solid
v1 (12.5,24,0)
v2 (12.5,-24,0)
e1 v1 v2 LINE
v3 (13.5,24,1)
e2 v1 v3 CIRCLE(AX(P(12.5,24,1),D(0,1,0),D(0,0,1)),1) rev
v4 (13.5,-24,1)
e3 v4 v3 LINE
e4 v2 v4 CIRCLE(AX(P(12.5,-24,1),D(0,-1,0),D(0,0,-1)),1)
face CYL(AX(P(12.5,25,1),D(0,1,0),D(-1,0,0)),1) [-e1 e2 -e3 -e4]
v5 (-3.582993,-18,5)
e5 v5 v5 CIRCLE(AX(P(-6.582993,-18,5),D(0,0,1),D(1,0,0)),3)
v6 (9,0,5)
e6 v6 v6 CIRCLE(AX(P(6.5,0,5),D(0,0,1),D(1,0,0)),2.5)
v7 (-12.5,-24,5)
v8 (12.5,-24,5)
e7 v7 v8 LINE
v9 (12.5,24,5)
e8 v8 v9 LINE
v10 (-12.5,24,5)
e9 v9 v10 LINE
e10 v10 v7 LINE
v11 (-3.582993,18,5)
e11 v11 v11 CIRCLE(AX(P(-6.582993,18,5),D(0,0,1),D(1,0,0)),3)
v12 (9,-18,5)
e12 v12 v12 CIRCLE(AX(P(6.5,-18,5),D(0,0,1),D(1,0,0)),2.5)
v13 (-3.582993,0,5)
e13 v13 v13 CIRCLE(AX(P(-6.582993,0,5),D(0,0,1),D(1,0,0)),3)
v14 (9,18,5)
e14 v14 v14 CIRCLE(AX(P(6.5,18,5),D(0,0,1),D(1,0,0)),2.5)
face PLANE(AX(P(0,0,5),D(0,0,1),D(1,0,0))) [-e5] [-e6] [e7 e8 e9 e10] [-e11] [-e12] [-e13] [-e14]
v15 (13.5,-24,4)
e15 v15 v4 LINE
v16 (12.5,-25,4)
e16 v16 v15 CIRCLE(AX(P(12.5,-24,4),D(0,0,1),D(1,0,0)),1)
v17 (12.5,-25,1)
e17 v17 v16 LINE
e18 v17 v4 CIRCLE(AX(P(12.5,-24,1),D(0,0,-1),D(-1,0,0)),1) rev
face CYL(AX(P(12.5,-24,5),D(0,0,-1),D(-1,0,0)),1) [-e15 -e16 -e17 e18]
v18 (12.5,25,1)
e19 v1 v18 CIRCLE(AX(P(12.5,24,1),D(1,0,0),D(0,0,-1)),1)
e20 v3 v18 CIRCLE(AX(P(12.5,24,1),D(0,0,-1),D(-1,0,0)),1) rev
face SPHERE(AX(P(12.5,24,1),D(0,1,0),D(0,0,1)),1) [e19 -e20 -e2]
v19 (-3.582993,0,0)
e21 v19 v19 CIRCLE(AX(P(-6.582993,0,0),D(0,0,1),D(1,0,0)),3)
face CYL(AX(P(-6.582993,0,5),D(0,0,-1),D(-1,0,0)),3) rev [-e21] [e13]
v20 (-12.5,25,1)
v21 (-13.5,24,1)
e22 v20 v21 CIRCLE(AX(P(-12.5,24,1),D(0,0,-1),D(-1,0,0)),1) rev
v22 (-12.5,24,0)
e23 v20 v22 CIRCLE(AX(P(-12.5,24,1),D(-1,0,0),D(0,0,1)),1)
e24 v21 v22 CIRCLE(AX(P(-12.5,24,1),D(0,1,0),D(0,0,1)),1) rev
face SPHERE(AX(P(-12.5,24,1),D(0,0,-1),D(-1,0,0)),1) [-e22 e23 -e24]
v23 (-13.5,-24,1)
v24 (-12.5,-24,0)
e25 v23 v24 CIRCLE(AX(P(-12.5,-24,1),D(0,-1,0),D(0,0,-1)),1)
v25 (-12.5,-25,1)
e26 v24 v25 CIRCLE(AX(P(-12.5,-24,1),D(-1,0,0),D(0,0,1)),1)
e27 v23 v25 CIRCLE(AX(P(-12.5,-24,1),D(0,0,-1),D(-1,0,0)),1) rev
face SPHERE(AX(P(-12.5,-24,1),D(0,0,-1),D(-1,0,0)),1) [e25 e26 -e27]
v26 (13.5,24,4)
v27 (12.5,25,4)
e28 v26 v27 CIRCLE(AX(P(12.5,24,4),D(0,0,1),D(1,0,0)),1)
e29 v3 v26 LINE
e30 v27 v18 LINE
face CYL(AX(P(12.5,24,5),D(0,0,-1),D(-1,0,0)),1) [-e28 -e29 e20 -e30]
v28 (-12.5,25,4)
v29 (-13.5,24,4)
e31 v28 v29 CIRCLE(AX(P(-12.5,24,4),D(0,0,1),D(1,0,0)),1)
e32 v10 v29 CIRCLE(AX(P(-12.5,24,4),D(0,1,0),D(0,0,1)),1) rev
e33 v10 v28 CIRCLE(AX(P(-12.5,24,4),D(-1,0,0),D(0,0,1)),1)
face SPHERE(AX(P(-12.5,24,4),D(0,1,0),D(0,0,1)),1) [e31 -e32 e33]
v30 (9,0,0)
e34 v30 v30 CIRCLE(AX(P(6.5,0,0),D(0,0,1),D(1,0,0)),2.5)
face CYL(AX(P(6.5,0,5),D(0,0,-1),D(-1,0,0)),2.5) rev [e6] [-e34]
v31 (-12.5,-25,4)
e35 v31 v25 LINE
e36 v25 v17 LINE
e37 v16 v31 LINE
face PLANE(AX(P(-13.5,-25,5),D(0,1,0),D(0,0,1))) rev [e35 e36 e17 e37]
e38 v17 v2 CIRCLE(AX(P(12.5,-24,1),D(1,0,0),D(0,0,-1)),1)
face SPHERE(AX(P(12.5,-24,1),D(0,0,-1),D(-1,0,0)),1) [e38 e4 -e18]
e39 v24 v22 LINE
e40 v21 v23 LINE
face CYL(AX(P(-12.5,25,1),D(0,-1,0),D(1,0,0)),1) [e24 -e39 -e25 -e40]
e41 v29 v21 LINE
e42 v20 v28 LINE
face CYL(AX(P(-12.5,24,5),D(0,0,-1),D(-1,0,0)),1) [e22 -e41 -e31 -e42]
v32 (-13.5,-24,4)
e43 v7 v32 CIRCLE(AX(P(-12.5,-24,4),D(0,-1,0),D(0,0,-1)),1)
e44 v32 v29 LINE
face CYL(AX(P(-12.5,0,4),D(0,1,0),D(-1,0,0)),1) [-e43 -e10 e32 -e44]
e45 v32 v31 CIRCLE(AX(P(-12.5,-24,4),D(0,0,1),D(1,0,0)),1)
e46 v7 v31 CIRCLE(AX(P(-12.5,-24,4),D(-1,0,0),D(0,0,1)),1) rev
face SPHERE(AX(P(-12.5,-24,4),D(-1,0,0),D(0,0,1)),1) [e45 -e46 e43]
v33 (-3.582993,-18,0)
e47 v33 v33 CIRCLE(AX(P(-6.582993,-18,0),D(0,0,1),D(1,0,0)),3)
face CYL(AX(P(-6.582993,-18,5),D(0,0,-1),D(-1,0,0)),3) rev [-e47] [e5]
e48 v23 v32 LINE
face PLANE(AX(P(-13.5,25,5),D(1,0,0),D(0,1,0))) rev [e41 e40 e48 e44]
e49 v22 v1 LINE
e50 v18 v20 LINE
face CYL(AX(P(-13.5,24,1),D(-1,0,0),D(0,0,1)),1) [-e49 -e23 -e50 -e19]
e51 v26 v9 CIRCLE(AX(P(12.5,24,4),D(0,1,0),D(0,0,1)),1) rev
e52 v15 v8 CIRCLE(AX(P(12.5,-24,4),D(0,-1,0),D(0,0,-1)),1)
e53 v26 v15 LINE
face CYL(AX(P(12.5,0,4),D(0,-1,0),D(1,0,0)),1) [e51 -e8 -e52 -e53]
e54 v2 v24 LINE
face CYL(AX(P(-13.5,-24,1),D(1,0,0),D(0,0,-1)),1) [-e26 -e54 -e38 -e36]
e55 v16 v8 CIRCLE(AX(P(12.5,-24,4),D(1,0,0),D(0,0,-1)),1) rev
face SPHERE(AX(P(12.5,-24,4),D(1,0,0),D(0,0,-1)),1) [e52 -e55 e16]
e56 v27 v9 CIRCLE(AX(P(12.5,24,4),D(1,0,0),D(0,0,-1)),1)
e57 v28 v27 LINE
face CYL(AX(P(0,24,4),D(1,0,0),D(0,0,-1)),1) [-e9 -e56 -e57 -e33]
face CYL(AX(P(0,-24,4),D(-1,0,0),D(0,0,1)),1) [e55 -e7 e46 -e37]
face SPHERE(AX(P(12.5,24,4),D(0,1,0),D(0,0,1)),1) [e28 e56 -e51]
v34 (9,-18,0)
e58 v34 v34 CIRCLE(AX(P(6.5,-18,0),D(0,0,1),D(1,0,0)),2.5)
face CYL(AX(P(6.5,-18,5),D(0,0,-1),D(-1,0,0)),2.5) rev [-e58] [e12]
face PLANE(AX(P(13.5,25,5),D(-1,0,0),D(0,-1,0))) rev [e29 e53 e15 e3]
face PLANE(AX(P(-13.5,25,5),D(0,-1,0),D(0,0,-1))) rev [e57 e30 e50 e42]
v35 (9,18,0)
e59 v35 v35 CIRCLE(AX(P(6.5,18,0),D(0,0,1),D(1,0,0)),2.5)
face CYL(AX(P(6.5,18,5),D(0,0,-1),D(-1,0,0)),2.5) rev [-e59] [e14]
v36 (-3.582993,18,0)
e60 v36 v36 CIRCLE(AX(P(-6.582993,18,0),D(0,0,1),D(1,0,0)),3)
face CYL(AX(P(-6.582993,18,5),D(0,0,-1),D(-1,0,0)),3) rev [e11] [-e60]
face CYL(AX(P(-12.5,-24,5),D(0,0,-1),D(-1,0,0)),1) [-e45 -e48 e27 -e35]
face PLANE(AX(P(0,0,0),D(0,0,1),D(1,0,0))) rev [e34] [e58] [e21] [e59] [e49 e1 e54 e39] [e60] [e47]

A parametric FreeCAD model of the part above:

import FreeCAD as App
import Part
import Sketcher
from FreeCAD import Vector


def edges_at(feature, points):
    """Names of the edges that pass closest to the given points."""
    edges = feature.Shape.Edges
    near = lambda p: min(range(len(edges)), key=lambda i: edges[i].distToShape(Part.Vertex(*p))[0])
    return sorted({f"Edge{near(p) + 1}" for p in points})

doc = App.newDocument("Part")
body = doc.addObject("PartDesign::Body", "Body")

sketch1 = body.newObject("Sketcher::SketchObject", "Sketch")
sketch1.AttachmentSupport = (doc.getObject("XY_Plane"), [""])
sketch1.MapMode = "FlatFace"
sketch1.addGeometry([
    Part.LineSegment(Vector(-13.5, 25, 0), Vector(-13.5, -25, 0)),
    Part.LineSegment(Vector(-13.5, -25, 0), Vector(13.5, -25, 0)),
    Part.LineSegment(Vector(13.5, -25, 0), Vector(13.5, 25, 0)),
    Part.LineSegment(Vector(13.5, 25, 0), Vector(-13.5, 25, 0)),
    Part.Circle(Vector(-6.6, -18, 0), Vector(0, 0, 1), 3),
    Part.Circle(Vector(6.5, -18, 0), Vector(0, 0, 1), 2.5),
    Part.Circle(Vector(-6.6, 0, 0), Vector(0, 0, 1), 3),
    Part.Circle(Vector(-6.6, 18, 0), Vector(0, 0, 1), 3),
    Part.Circle(Vector(6.5, 0, 0), Vector(0, 0, 1), 2.5),
    Part.Circle(Vector(6.5, 18, 0), Vector(0, 0, 1), 2.5),
], False)
sketch1.addConstraint([
    Sketcher.Constraint("Coincident", 0, 2, 1, 1),
    Sketcher.Constraint("Coincident", 1, 2, 2, 1),
    Sketcher.Constraint("Coincident", 2, 2, 3, 1),
    Sketcher.Constraint("Coincident", 3, 2, 0, 1),
    Sketcher.Constraint("Vertical", 0),
    Sketcher.Constraint("Horizontal", 1),
    Sketcher.Constraint("Vertical", 2),
    Sketcher.Constraint("Horizontal", 3),
    Sketcher.Constraint("Equal", 4, 6),
    Sketcher.Constraint("Equal", 6, 7),
    Sketcher.Constraint("Equal", 5, 8),
    Sketcher.Constraint("Equal", 8, 9),
    Sketcher.Constraint("Symmetric", 0, 2, 2, 2, -1, 1),
    Sketcher.Constraint("Symmetric", 4, 3, 7, 3, -1),
    Sketcher.Constraint("Symmetric", 5, 3, 9, 3, -1),
    Sketcher.Constraint("PointOnObject", 6, 3, -1),
    Sketcher.Constraint("PointOnObject", 8, 3, -1),
    Sketcher.Constraint("Horizontal", 4, 3, 5, 3),
    Sketcher.Constraint("Vertical", 4, 3, 6, 3),
    Sketcher.Constraint("Vertical", 5, 3, 8, 3),
    Sketcher.Constraint("Diameter", 4, 6.0),
    Sketcher.Constraint("Diameter", 5, 5.0),
    Sketcher.Constraint("DistanceX", 1, 1, 1, 2, 27.0),
    Sketcher.Constraint("DistanceY", 0, 2, 0, 1, 50.0),
    Sketcher.Constraint("DistanceY", 4, 3, -1, 1, 18.0),
    Sketcher.Constraint("DistanceX", 0, 2, 5, 3, 20.0),
    Sketcher.Constraint("DistanceX", 4, 3, -1, 1, 6.582993),
])
pad1 = body.newObject("PartDesign::Pad", "Pad")
pad1.Profile = sketch1
pad1.Length = 5
doc.recompute()

fillet = body.newObject("PartDesign::Fillet", "Fillet")
fillet.Base = (pad1, edges_at(pad1, [
    (-13.5, 0, 5),
    (0, -25, 5),
    (13.5, 0, 5),
    (0, -25, 0),
    (-13.5, 0, 0),
    (0, 25, 0),
    (13.5, 0, 0),
    (13.5, -25, 2.5),
    (-13.5, -25, 2.5),
    (-13.5, 25, 2.5),
    (13.5, 25, 2.5),
    (0, 25, 5),
]))
fillet.Radius = 1

doc.recompute()
